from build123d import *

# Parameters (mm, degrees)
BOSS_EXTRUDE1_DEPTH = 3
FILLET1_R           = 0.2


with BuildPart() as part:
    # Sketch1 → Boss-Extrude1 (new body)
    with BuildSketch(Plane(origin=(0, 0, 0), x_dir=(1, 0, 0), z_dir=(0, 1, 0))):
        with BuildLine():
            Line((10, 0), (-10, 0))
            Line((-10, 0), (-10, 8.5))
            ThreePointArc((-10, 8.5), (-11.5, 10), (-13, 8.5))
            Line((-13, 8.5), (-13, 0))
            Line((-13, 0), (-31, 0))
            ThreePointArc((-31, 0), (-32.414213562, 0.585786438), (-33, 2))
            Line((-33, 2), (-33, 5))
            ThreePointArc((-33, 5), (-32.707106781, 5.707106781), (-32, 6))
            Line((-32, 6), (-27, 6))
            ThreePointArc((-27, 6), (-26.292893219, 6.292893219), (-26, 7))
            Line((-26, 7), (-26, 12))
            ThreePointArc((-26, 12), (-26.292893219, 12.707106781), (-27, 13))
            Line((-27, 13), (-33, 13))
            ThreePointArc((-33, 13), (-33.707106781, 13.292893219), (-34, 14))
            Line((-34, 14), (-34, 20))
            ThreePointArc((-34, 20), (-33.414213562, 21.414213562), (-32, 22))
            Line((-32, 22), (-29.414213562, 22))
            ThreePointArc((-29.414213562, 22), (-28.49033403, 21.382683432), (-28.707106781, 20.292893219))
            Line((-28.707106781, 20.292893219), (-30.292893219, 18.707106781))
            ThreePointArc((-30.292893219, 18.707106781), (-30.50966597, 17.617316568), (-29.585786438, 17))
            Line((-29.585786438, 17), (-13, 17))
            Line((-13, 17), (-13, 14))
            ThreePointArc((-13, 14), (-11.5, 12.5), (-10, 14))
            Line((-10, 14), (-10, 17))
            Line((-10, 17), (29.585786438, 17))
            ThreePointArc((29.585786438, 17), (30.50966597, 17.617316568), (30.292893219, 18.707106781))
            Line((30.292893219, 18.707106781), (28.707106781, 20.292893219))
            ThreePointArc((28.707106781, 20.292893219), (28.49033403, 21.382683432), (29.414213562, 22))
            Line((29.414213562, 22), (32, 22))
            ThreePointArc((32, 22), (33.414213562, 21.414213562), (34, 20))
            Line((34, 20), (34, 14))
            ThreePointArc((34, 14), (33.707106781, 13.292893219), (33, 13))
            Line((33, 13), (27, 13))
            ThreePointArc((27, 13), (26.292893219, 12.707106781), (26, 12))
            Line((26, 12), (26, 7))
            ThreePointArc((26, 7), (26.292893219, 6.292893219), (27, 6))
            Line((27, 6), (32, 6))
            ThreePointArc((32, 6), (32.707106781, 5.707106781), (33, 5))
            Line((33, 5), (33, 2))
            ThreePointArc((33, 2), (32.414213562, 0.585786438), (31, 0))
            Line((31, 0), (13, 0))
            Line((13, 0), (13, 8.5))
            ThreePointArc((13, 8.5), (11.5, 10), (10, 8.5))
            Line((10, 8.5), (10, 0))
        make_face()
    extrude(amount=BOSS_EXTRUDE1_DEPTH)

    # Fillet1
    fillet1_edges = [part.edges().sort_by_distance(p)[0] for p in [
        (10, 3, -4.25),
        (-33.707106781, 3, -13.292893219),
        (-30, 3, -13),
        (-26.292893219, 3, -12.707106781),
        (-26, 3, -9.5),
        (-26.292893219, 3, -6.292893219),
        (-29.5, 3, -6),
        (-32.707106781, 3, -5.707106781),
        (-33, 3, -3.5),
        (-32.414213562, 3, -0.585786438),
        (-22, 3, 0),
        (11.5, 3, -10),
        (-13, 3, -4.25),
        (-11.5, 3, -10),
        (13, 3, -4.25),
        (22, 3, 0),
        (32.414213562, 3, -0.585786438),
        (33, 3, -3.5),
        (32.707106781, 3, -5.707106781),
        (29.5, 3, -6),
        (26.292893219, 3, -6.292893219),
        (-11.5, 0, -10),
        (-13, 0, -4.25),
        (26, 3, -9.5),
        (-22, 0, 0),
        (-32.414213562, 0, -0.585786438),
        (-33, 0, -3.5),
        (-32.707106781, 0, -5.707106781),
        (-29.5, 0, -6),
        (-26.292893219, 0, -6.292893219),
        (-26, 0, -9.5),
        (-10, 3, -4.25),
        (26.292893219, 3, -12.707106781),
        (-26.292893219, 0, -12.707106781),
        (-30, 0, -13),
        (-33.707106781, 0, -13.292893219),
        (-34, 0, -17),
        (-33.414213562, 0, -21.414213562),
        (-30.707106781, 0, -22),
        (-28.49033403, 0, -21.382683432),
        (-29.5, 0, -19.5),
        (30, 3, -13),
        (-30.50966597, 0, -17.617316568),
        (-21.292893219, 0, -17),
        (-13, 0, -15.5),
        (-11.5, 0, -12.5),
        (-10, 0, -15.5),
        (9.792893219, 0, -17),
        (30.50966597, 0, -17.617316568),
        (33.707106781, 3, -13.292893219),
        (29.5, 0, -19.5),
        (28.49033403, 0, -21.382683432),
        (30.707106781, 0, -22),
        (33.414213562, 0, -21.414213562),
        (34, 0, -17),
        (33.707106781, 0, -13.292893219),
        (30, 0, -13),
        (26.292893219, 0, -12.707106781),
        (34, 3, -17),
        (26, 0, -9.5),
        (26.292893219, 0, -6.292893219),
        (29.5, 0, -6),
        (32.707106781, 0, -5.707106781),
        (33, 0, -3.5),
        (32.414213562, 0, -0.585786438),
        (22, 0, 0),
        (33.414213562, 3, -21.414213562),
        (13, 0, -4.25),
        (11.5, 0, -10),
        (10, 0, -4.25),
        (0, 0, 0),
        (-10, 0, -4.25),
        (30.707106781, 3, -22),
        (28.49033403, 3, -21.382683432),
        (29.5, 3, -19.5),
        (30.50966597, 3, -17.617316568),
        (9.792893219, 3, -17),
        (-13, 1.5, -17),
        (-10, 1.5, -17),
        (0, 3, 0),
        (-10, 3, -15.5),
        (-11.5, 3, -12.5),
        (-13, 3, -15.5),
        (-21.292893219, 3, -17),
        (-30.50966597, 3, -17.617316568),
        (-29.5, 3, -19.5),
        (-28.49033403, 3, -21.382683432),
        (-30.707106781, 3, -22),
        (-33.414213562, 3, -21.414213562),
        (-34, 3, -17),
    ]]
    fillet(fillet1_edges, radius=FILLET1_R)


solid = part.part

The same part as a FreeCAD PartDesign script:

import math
import FreeCAD as App
import Part
import Sketcher

V = App.Vector
Q = App.Units.Quantity


def edges_at(feature, points):
    """Names of the edges that pass closest to the given points."""
    edges = feature.Shape.Edges
    near = lambda p: min(range(len(edges)), key=lambda i: edges[i].distToShape(Part.Vertex(*p))[0])
    return sorted({f"Edge{near(p) + 1}" for p in points})

doc = App.newDocument("Part")
params = doc.addObject("Spreadsheet::Sheet", "Params")
for row, (alias, value) in enumerate([
    ("sketch1_radius", "2 mm"),
    ("sketch1_radius2", "1.5 mm"),
    ("sketch1_width", "20 mm"),
    ("sketch1_width2", "18 mm"),
    ("sketch1_width3", "5 mm"),
    ("pad1_length", "3 mm"),
    ("fillet_radius", "0.2 mm"),
], start=1):
    params.set(f"A{row}", alias)
    params.set(f"B{row}", "=" + value)
    params.setAlias(f"B{row}", alias)

body = doc.addObject("PartDesign::Body", "Body")

# Sketch on XZ plane
sketch1 = body.newObject("Sketcher::SketchObject", "Sketch")
sketch1.AttachmentSupport = (doc.getObject("XZ_Plane"), [""])
sketch1.MapMode = "FlatFace"
sketch1.addGeometry([
    Part.LineSegment(V(-10, 0, 0), V(10, 0, 0)),  # 0
    Part.LineSegment(V(10, 0, 0), V(10, -8.5, 0)),  # 1
    Part.ArcOfCircle(Part.Circle(V(11.5, -8.5, 0), V(0, 0, 1), 1.5), math.radians(180), math.radians(360)),  # 2
    Part.LineSegment(V(13, -8.5, 0), V(13, 0, 0)),  # 3
    Part.LineSegment(V(13, 0, 0), V(31, 0, 0)),  # 4
    Part.ArcOfCircle(Part.Circle(V(31, -2, 0), V(0, 0, 1), 2), math.radians(0), math.radians(90)),  # 5
    Part.LineSegment(V(33, -2, 0), V(33, -5, 0)),  # 6
    Part.ArcOfCircle(Part.Circle(V(32, -5, 0), V(0, 0, 1), 1), math.radians(-90), math.radians(0)),  # 7
    Part.LineSegment(V(32, -6, 0), V(27, -6, 0)),  # 8
    Part.ArcOfCircle(Part.Circle(V(27, -7, 0), V(0, 0, 1), 1), math.radians(90), math.radians(180)),  # 9
    Part.LineSegment(V(26, -7, 0), V(26, -12, 0)),  # 10
    Part.ArcOfCircle(Part.Circle(V(27, -12, 0), V(0, 0, 1), 1), math.radians(-180), math.radians(-90)),  # 11
    Part.LineSegment(V(27, -13, 0), V(33, -13, 0)),  # 12
    Part.ArcOfCircle(Part.Circle(V(33, -14, 0), V(0, 0, 1), 1), math.radians(0), math.radians(90)),  # 13
    Part.LineSegment(V(34, -14, 0), V(34, -20, 0)),  # 14
    Part.ArcOfCircle(Part.Circle(V(32, -20, 0), V(0, 0, 1), 2), math.radians(-90), math.radians(0)),  # 15
    Part.LineSegment(V(32, -22, 0), V(29.4, -22, 0)),  # 16
    Part.ArcOfCircle(Part.Circle(V(29.4, -21, 0), V(0, 0, 1), 1), math.radians(135), math.radians(270)),  # 17
    Part.LineSegment(V(28.7, -20.3, 0), V(30.3, -18.7, 0)),  # 18
    Part.ArcOfCircle(Part.Circle(V(29.6, -18, 0), V(0, 0, 1), 1), math.radians(-45), math.radians(90)),  # 19
    Part.LineSegment(V(29.6, -17, 0), V(-10, -17, 0)),  # 20
    Part.LineSegment(V(-10, -17, 0), V(-10, -14, 0)),  # 21
    Part.ArcOfCircle(Part.Circle(V(-11.5, -14, 0), V(0, 0, 1), 1.5), math.radians(0), math.radians(180)),  # 22
    Part.LineSegment(V(-13, -14, 0), V(-13, -17, 0)),  # 23
    Part.LineSegment(V(-13, -17, 0), V(-29.6, -17, 0)),  # 24
    Part.ArcOfCircle(Part.Circle(V(-29.6, -18, 0), V(0, 0, 1), 1), math.radians(90), math.radians(225)),  # 25
    Part.LineSegment(V(-30.3, -18.7, 0), V(-28.7, -20.3, 0)),  # 26
    Part.ArcOfCircle(Part.Circle(V(-29.4, -21, 0), V(0, 0, 1), 1), math.radians(-90), math.radians(45)),  # 27
    Part.LineSegment(V(-29.4, -22, 0), V(-32, -22, 0)),  # 28
    Part.ArcOfCircle(Part.Circle(V(-32, -20, 0), V(0, 0, 1), 2), math.radians(-180), math.radians(-90)),  # 29
    Part.LineSegment(V(-34, -20, 0), V(-34, -14, 0)),  # 30
    Part.ArcOfCircle(Part.Circle(V(-33, -14, 0), V(0, 0, 1), 1), math.radians(90), math.radians(180)),  # 31
    Part.LineSegment(V(-33, -13, 0), V(-27, -13, 0)),  # 32
    Part.ArcOfCircle(Part.Circle(V(-27, -12, 0), V(0, 0, 1), 1), math.radians(-90), math.radians(0)),  # 33
    Part.LineSegment(V(-26, -12, 0), V(-26, -7, 0)),  # 34
    Part.ArcOfCircle(Part.Circle(V(-27, -7, 0), V(0, 0, 1), 1), math.radians(0), math.radians(90)),  # 35
    Part.LineSegment(V(-27, -6, 0), V(-32, -6, 0)),  # 36
    Part.ArcOfCircle(Part.Circle(V(-32, -5, 0), V(0, 0, 1), 1), math.radians(-180), math.radians(-90)),  # 37
    Part.LineSegment(V(-33, -5, 0), V(-33, -2, 0)),  # 38
    Part.ArcOfCircle(Part.Circle(V(-31, -2, 0), V(0, 0, 1), 2), math.radians(90), math.radians(180)),  # 39
    Part.LineSegment(V(-31, 0, 0), V(-13, 0, 0)),  # 40
    Part.LineSegment(V(-13, 0, 0), V(-13, -8.5, 0)),  # 41
    Part.ArcOfCircle(Part.Circle(V(-11.5, -8.5, 0), V(0, 0, 1), 1.5), math.radians(180), math.radians(360)),  # 42
    Part.LineSegment(V(-10, -8.5, 0), V(-10, 0, 0)),  # 43
], False)
sketch1.addConstraint([
    Sketcher.Constraint("Coincident", 0, 2, 1, 1),
    Sketcher.Constraint("Tangent", 1, 2, 2, 1),
    Sketcher.Constraint("Tangent", 2, 2, 3, 1),
    Sketcher.Constraint("Coincident", 3, 2, 4, 1),
    Sketcher.Constraint("Tangent", 4, 2, 5, 2),
    Sketcher.Constraint("Tangent", 5, 1, 6, 1),
    Sketcher.Constraint("Tangent", 6, 2, 7, 2),
    Sketcher.Constraint("Tangent", 7, 1, 8, 1),
    Sketcher.Constraint("Tangent", 8, 2, 9, 1),
    Sketcher.Constraint("Tangent", 9, 2, 10, 1),
    Sketcher.Constraint("Tangent", 10, 2, 11, 1),
    Sketcher.Constraint("Tangent", 11, 2, 12, 1),
    Sketcher.Constraint("Tangent", 12, 2, 13, 2),
    Sketcher.Constraint("Tangent", 13, 1, 14, 1),
    Sketcher.Constraint("Tangent", 14, 2, 15, 2),
    Sketcher.Constraint("Tangent", 15, 1, 16, 1),
    Sketcher.Constraint("Tangent", 16, 2, 17, 2),
    Sketcher.Constraint("Tangent", 17, 1, 18, 1),
    Sketcher.Constraint("Tangent", 18, 2, 19, 1),
    Sketcher.Constraint("Tangent", 19, 2, 20, 1),
    Sketcher.Constraint("Coincident", 20, 2, 21, 1),
    Sketcher.Constraint("Tangent", 21, 2, 22, 1),
    Sketcher.Constraint("Tangent", 22, 2, 23, 1),
    Sketcher.Constraint("Coincident", 23, 2, 24, 1),
    Sketcher.Constraint("Tangent", 24, 2, 25, 1),
    Sketcher.Constraint("Tangent", 25, 2, 26, 1),
    Sketcher.Constraint("Tangent", 26, 2, 27, 2),
    Sketcher.Constraint("Tangent", 27, 1, 28, 1),
    Sketcher.Constraint("Tangent", 28, 2, 29, 2),
    Sketcher.Constraint("Tangent", 29, 1, 30, 1),
    Sketcher.Constraint("Tangent", 30, 2, 31, 2),
    Sketcher.Constraint("Tangent", 31, 1, 32, 1),
    Sketcher.Constraint("Tangent", 32, 2, 33, 1),
    Sketcher.Constraint("Tangent", 33, 2, 34, 1),
    Sketcher.Constraint("Tangent", 34, 2, 35, 1),
    Sketcher.Constraint("Tangent", 35, 2, 36, 1),
    Sketcher.Constraint("Tangent", 36, 2, 37, 2),
    Sketcher.Constraint("Tangent", 37, 1, 38, 1),
    Sketcher.Constraint("Tangent", 38, 2, 39, 2),
    Sketcher.Constraint("Tangent", 39, 1, 40, 1),
    Sketcher.Constraint("Coincident", 40, 2, 41, 1),
    Sketcher.Constraint("Tangent", 41, 2, 42, 1),
    Sketcher.Constraint("Tangent", 42, 2, 43, 1),
    Sketcher.Constraint("Coincident", 43, 2, 0, 1),
    Sketcher.Constraint("Horizontal", 0),
    Sketcher.Constraint("Vertical", 1),
    Sketcher.Constraint("Vertical", 3),
    Sketcher.Constraint("Horizontal", 4),
    Sketcher.Constraint("Vertical", 6),
    Sketcher.Constraint("Horizontal", 8),
    Sketcher.Constraint("Vertical", 10),
    Sketcher.Constraint("Horizontal", 12),
    Sketcher.Constraint("Vertical", 14),
    Sketcher.Constraint("Horizontal", 16),
    Sketcher.Constraint("Horizontal", 20),
    Sketcher.Constraint("Vertical", 21),
    Sketcher.Constraint("Vertical", 23),
    Sketcher.Constraint("Horizontal", 24),
    Sketcher.Constraint("Horizontal", 28),
    Sketcher.Constraint("Vertical", 30),
    Sketcher.Constraint("Horizontal", 32),
    Sketcher.Constraint("Vertical", 34),
    Sketcher.Constraint("Horizontal", 36),
    Sketcher.Constraint("Vertical", 38),
    Sketcher.Constraint("Horizontal", 40),
    Sketcher.Constraint("Vertical", 41),
    Sketcher.Constraint("Vertical", 43),
    Sketcher.Constraint("Equal", 7, 9),
    Sketcher.Constraint("Equal", 9, 11),
    Sketcher.Constraint("Equal", 11, 13),
    Sketcher.Constraint("Equal", 5, 15),
    Sketcher.Constraint("Equal", 13, 17),
    Sketcher.Constraint("Equal", 17, 19),
    Sketcher.Constraint("Equal", 2, 22),
    Sketcher.Constraint("Equal", 19, 25),
    Sketcher.Constraint("Equal", 25, 27),
    Sketcher.Constraint("Equal", 15, 29),
    Sketcher.Constraint("Equal", 27, 31),
    Sketcher.Constraint("Equal", 31, 33),
    Sketcher.Constraint("Equal", 33, 35),
    Sketcher.Constraint("Equal", 35, 37),
    Sketcher.Constraint("Equal", 29, 39),
    Sketcher.Constraint("Equal", 22, 42),
    Sketcher.Constraint("Symmetric", 4, 2, 39, 1, -1, 1),
    Sketcher.Constraint("Symmetric", 0, 2, 43, 2, -1, 1),
    Sketcher.Constraint("Symmetric", 19, 3, 25, 3, -2),
    Sketcher.Constraint("Symmetric", 17, 3, 27, 3, -2),
    Sketcher.Constraint("Symmetric", 13, 3, 31, 3, -2),
    Sketcher.Constraint("Symmetric", 9, 3, 35, 3, -2),
    Sketcher.Constraint("PointOnObject", 3, 2, -1),
    Sketcher.Constraint("Perpendicular", 18, 26),
    Sketcher.Constraint("Horizontal", 13, 3, 22, 3),
    Sketcher.Constraint("Horizontal", 2, 3, 42, 3),
    Sketcher.Constraint("Vertical", 7, 3, 15, 3),
    Sketcher.Constraint("Vertical", 22, 3, 42, 3),
    Sketcher.Constraint("Vertical", 13, 3, 5, 1),
    Sketcher.Constraint("Equal", 36, 10),
    Sketcher.Constraint("Equal", 32, 14),
    Sketcher.Constraint("Equal", 6, 21),
    Sketcher.Constraint("Radius", 5, Q("2 mm")),
    Sketcher.Constraint("Radius", 2, Q("1.5 mm")),
    Sketcher.Constraint("DistanceX", 0, 1, 0, 2, Q("20 mm")),
    Sketcher.Constraint("DistanceX", 4, 1, 4, 2, Q("18 mm")),
    Sketcher.Constraint("DistanceX", 8, 2, 8, 1, Q("5 mm")),
    Sketcher.Constraint("DistanceY", 6, 2, 6, 1, Q("3 mm")),
    Sketcher.Constraint("DistanceY", 1, 2, 1, 1, Q("8.5 mm")),
    Sketcher.Constraint("DistanceX", 16, 2, 16, 1, Q("2.585786 mm")),
])
sketch1.setExpression("Constraints[99]", "Params.sketch1_radius")
sketch1.setExpression("Constraints[100]", "Params.sketch1_radius2")
sketch1.setExpression("Constraints[101]", "Params.sketch1_width")
sketch1.setExpression("Constraints[102]", "Params.sketch1_width2")
sketch1.setExpression("Constraints[103]", "Params.sketch1_width3")
pad1 = body.newObject("PartDesign::Pad", "Pad")
pad1.Profile = sketch1
pad1.setExpression("Length", "Params.pad1_length")
pad1.Reversed = True
doc.recompute()

fillet = body.newObject("PartDesign::Fillet", "Fillet")
fillet.Base = (pad1, edges_at(pad1, [
    (10, 3, -4.25),
    (-33.707, 3, -13.293),
    (-30, 3, -13),
    (-26.293, 3, -12.707),
    (-26, 3, -9.5),
    (-26.293, 3, -6.293),
    (-29.5, 3, -6),
    (-32.707, 3, -5.707),
    (-33, 3, -3.5),
    (-32.414, 3, -0.586),
    (-22, 3, 0),
    (11.5, 3, -10),
    (-13, 3, -4.25),
    (-11.5, 3, -10),
    (13, 3, -4.25),
    (22, 3, 0),
    (32.414, 3, -0.586),
    (33, 3, -3.5),
    (32.707, 3, -5.707),
    (29.5, 3, -6),
    (26.293, 3, -6.293),
    (-11.5, 0, -10),
    (-13, 0, -4.25),
    (26, 3, -9.5),
    (-22, 0, 0),
    (-32.414, 0, -0.586),
    (-33, 0, -3.5),
    (-32.707, 0, -5.707),
    (-29.5, 0, -6),
    (-26.293, 0, -6.293),
    (-26, 0, -9.5),
    (-10, 3, -4.25),
    (26.293, 3, -12.707),
    (-26.293, 0, -12.707),
    (-30, 0, -13),
    (-33.707, 0, -13.293),
    (-34, 0, -17),
    (-33.414, 0, -21.414),
    (-30.707, 0, -22),
    (-28.49, 0, -21.383),
    (-29.5, 0, -19.5),
    (30, 3, -13),
    (-30.51, 0, -17.617),
    (-21.293, 0, -17),
    (-13, 0, -15.5),
    (-11.5, 0, -12.5),
    (-10, 0, -15.5),
    (9.793, 0, -17),
    (30.51, 0, -17.617),
    (33.707, 3, -13.293),
    (29.5, 0, -19.5),
    (28.49, 0, -21.383),
    (30.707, 0, -22),
    (33.414, 0, -21.414),
    (34, 0, -17),
    (33.707, 0, -13.293),
    (30, 0, -13),
    (26.293, 0, -12.707),
    (34, 3, -17),
    (26, 0, -9.5),
    (26.293, 0, -6.293),
    (29.5, 0, -6),
    (32.707, 0, -5.707),
    (33, 0, -3.5),
    (32.414, 0, -0.586),
    (22, 0, 0),
    (33.414, 3, -21.414),
    (13, 0, -4.25),
    (11.5, 0, -10),
    (10, 0, -4.25),
    (0, 0, 0),
    (-10, 0, -4.25),
    (30.707, 3, -22),
    (28.49, 3, -21.383),
    (29.5, 3, -19.5),
    (30.51, 3, -17.617),
    (9.793, 3, -17),
    (-13, 1.5, -17),
    (-10, 1.5, -17),
    (0, 3, 0),
    (-10, 3, -15.5),
    (-11.5, 3, -12.5),
    (-13, 3, -15.5),
    (-21.293, 3, -17),
    (-30.51, 3, -17.617),
    (-29.5, 3, -19.5),
    (-28.49, 3, -21.383),
    (-30.707, 3, -22),
    (-33.414, 3, -21.414),
    (-34, 3, -17),
]))
fillet.setExpression("Radius", "Params.fillet_radius")

doc.recompute()
